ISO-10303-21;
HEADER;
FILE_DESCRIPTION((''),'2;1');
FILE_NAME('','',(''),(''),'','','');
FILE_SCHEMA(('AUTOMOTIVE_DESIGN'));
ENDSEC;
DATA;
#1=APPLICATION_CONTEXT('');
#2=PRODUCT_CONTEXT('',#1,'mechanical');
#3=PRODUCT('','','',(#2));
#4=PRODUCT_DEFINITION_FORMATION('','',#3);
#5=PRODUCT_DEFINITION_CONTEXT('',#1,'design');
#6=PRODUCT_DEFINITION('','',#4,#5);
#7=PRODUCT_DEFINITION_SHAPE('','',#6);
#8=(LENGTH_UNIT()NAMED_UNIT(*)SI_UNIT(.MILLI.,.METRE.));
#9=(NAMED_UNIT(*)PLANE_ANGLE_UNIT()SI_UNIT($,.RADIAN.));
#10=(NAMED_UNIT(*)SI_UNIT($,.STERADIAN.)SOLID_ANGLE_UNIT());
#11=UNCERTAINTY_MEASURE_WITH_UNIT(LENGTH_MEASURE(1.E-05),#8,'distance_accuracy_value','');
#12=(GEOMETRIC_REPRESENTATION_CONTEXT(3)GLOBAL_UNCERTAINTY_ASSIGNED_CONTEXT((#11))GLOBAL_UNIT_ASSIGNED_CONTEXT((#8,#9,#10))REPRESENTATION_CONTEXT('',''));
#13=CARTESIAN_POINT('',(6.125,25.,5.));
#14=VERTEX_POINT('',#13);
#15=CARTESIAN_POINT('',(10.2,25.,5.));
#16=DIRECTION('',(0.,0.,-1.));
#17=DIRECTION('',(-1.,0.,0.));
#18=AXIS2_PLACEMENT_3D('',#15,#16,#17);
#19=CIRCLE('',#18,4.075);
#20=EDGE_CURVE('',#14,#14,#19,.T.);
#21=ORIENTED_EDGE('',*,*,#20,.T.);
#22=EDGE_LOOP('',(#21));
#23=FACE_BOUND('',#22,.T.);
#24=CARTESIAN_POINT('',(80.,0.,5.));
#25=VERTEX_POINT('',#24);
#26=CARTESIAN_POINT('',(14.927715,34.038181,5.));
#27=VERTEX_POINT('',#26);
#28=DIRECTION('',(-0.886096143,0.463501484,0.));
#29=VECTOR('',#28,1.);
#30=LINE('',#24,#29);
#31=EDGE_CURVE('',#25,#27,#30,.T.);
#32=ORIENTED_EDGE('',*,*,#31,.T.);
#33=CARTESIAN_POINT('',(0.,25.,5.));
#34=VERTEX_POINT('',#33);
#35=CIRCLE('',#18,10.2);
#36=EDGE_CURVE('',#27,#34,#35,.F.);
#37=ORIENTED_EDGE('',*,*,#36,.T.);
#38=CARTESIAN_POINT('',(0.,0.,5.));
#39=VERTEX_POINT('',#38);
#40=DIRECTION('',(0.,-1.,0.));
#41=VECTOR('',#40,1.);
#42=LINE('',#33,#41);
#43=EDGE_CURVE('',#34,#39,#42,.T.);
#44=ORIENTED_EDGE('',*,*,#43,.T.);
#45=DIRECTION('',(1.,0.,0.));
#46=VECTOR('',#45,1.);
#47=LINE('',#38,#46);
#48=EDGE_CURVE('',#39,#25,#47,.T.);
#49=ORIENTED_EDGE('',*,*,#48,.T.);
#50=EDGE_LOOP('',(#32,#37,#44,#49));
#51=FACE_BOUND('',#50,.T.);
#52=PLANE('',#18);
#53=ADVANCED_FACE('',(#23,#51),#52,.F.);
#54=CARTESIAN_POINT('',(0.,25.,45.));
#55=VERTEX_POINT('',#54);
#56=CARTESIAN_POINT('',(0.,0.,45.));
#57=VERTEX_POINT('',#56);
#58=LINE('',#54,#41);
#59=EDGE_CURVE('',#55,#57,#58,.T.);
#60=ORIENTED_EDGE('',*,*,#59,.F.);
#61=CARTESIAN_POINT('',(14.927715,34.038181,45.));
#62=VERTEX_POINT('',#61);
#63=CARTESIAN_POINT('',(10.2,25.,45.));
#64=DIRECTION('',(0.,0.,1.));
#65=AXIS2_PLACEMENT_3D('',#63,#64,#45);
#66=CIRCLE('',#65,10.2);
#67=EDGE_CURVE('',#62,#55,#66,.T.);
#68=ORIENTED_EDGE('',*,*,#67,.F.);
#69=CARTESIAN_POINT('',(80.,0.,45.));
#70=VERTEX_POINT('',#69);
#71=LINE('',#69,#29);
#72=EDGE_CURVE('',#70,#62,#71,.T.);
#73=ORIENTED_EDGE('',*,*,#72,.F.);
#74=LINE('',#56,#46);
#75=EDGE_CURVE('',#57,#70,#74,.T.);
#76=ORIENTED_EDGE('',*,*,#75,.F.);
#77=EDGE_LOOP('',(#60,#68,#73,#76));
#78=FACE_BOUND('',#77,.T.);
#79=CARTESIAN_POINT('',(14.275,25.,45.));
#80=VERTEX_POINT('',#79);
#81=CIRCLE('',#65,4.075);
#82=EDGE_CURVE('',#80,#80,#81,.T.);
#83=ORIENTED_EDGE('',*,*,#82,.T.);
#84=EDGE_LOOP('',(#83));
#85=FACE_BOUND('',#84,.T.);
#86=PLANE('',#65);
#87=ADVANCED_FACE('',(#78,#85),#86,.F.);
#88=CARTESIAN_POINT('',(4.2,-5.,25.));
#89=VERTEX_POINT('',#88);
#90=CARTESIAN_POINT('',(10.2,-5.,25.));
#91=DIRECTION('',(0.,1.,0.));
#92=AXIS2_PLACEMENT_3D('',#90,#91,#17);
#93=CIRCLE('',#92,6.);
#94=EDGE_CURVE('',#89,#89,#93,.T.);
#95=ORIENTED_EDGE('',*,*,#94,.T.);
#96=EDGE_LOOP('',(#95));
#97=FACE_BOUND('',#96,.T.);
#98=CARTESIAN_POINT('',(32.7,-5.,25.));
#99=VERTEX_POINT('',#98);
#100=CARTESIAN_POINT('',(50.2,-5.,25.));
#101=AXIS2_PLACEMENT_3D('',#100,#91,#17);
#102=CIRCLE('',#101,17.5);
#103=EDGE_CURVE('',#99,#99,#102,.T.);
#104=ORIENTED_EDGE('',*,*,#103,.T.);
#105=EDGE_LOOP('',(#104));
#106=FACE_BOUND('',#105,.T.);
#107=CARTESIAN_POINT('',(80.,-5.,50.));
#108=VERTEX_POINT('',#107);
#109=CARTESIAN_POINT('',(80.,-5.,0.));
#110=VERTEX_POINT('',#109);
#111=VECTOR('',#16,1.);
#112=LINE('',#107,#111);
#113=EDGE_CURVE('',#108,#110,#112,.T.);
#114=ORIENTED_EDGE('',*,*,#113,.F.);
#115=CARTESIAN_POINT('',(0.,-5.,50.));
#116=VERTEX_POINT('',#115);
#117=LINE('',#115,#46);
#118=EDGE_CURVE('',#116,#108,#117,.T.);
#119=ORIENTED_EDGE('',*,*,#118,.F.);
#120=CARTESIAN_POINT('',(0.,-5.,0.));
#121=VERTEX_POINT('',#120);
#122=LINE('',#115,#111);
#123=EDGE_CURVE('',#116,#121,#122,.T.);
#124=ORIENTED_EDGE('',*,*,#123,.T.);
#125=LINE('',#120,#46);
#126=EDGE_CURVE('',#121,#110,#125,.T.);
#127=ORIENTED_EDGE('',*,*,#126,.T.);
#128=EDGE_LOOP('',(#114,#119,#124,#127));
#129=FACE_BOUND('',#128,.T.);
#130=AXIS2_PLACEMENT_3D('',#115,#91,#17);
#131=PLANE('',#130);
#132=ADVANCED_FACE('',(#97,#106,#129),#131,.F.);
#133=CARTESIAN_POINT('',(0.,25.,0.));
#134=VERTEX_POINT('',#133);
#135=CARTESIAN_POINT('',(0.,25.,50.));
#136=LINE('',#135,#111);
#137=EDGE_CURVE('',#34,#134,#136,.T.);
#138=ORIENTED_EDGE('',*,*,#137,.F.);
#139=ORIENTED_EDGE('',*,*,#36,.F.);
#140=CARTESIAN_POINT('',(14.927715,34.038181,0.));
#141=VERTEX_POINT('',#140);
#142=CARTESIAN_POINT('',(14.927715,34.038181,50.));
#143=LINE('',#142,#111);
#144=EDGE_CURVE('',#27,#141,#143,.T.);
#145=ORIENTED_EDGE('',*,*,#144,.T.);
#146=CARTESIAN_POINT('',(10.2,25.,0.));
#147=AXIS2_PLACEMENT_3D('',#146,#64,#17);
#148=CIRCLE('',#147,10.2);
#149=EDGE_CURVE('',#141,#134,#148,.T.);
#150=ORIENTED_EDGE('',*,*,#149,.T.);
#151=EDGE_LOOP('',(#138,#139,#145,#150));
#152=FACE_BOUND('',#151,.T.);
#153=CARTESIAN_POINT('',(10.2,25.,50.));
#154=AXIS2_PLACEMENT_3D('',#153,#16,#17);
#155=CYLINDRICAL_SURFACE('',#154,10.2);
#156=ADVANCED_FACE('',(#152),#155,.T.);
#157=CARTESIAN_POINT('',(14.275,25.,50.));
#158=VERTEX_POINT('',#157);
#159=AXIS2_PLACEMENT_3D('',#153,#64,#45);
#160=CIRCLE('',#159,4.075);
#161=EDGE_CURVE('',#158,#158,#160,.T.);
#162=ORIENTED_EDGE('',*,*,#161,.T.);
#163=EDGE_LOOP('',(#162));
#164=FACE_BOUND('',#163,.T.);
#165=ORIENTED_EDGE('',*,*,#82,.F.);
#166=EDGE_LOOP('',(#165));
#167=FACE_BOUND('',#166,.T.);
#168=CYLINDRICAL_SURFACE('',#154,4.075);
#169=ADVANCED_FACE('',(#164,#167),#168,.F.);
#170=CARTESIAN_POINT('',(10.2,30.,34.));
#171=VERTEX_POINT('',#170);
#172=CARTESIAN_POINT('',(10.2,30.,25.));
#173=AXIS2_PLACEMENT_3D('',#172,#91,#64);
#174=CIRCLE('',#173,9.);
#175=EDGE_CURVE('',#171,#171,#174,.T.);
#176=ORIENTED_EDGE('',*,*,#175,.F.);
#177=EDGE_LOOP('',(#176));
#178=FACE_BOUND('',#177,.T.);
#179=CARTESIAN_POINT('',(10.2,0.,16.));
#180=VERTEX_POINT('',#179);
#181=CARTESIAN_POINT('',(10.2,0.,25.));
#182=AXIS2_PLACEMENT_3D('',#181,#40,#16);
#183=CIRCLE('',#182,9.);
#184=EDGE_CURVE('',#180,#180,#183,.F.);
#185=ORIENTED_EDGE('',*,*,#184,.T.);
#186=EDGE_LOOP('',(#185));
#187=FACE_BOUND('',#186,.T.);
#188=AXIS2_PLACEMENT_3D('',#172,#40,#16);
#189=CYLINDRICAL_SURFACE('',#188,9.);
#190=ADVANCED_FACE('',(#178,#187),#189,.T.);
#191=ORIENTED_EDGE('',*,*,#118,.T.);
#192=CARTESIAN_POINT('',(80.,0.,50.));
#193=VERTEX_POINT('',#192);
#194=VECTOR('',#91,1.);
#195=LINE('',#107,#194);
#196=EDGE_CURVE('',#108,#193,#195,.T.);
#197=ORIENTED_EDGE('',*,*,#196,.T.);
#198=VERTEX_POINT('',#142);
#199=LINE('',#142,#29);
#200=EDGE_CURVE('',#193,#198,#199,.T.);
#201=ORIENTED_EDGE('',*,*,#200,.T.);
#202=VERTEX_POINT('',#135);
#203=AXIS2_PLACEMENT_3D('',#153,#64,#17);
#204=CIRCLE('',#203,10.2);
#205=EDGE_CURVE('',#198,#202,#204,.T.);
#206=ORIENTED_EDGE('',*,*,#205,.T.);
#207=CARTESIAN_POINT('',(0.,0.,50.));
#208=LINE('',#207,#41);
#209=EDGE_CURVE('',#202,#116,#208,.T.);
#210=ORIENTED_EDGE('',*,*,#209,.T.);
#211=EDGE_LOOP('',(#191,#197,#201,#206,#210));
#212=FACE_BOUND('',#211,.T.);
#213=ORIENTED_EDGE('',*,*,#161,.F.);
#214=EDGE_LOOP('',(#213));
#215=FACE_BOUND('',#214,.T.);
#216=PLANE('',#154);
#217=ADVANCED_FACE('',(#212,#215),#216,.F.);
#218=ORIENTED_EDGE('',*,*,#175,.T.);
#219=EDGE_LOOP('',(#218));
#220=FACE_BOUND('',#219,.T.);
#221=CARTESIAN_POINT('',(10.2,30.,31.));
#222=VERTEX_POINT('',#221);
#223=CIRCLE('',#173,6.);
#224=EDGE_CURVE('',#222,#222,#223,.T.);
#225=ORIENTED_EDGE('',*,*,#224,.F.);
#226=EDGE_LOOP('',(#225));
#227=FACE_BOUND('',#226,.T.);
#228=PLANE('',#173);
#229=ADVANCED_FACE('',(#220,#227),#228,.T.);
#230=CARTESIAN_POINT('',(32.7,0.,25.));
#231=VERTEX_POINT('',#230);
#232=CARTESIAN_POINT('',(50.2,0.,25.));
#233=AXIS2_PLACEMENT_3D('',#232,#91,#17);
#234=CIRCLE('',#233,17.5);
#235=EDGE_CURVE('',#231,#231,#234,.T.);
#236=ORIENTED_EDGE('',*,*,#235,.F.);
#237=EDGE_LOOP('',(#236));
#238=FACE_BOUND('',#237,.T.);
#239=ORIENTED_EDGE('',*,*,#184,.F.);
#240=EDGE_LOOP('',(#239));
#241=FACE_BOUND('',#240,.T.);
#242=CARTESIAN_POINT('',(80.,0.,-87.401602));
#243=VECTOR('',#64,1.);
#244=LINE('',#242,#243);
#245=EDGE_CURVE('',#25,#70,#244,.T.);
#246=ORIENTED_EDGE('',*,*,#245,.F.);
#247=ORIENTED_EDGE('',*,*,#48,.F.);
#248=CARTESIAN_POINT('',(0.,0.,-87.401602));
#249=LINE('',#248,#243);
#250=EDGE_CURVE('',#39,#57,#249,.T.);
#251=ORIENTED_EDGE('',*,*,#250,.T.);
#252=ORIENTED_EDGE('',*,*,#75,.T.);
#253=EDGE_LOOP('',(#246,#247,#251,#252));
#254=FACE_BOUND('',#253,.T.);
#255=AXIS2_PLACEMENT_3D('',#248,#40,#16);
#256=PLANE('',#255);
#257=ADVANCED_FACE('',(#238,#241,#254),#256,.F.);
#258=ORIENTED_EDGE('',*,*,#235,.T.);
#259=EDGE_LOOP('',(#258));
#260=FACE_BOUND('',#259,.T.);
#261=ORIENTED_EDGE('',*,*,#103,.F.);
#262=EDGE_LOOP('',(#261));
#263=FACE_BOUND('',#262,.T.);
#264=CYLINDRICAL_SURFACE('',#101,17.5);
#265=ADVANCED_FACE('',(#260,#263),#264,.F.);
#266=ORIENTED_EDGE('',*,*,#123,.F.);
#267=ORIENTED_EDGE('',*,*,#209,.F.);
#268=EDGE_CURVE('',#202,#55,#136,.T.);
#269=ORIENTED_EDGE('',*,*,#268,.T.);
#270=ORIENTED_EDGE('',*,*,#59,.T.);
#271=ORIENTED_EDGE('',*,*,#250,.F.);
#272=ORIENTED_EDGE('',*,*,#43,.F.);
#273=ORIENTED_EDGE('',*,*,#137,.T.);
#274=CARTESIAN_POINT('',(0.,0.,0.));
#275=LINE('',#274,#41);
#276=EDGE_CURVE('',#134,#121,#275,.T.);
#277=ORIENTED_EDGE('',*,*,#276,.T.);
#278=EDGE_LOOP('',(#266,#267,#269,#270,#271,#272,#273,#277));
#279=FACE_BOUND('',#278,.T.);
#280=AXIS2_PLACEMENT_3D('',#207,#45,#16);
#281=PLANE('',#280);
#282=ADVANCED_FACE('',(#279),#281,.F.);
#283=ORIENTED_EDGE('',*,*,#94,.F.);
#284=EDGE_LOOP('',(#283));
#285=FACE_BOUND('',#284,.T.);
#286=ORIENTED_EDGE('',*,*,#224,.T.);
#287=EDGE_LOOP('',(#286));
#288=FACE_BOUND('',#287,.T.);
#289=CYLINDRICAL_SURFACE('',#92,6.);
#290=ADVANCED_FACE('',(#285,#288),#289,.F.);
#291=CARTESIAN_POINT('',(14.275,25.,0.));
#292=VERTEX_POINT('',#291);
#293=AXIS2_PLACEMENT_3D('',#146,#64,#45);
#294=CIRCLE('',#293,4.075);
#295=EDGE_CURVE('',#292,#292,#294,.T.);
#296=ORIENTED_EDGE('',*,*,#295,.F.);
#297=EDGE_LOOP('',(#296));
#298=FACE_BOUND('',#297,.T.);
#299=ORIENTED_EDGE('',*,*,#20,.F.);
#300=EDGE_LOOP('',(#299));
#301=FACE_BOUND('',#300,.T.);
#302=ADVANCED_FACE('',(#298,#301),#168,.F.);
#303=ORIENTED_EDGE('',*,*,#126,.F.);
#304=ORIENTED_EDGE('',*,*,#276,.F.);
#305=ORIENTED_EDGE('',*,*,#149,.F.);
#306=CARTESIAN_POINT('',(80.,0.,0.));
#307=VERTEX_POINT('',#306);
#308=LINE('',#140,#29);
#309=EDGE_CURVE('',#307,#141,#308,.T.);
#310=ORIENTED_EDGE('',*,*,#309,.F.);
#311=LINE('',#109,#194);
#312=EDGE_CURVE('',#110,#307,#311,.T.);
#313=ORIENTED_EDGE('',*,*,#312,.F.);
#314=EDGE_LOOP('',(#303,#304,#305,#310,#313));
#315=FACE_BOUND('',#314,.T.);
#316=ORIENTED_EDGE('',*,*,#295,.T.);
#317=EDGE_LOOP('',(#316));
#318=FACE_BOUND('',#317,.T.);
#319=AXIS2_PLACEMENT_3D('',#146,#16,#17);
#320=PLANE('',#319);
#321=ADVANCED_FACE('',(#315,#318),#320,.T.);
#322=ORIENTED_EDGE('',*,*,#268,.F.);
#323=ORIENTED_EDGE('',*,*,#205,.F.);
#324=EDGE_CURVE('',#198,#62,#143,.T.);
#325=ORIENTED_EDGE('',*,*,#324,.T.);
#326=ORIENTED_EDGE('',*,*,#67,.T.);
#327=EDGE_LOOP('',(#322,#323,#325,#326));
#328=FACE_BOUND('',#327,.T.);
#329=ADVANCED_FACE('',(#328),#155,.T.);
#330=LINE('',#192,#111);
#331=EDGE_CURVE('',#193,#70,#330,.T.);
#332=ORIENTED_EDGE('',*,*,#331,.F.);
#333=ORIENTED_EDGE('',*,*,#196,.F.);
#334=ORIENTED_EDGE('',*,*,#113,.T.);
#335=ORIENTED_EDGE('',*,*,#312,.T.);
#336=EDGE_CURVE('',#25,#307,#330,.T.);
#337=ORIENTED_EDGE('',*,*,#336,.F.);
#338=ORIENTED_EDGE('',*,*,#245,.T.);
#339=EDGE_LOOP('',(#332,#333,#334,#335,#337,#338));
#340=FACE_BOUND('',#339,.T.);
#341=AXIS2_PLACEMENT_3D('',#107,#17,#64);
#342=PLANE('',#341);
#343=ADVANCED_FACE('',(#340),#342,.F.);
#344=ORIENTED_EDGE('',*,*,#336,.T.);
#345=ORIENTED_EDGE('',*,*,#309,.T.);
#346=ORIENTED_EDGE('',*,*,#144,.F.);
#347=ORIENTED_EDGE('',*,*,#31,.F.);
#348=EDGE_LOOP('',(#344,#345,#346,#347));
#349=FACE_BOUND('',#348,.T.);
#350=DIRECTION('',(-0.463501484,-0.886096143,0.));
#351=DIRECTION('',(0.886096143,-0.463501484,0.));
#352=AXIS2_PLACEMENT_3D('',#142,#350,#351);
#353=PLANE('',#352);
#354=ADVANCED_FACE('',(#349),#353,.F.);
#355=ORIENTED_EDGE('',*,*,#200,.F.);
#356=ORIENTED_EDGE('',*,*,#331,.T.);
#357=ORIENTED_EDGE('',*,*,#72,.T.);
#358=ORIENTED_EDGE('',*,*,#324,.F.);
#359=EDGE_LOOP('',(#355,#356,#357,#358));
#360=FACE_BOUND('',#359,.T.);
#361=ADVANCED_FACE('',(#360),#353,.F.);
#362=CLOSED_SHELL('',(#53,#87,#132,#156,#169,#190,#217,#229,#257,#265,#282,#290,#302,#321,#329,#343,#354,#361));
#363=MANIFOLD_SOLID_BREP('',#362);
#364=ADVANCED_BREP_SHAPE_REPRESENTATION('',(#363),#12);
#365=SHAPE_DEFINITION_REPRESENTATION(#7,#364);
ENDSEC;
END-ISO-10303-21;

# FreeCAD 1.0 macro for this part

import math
import FreeCAD as App
import Part
import Sketcher
Q = App.Units.Quantity

doc = App.newDocument("Part")
body = doc.addObject("PartDesign::Body", "Body")

# Sketch on XY plane
sketch1 = body.newObject("Sketcher::SketchObject", "Sketch")
sketch1.AttachmentSupport = (doc.getObject("XY_Plane"), [""])
sketch1.MapMode = "FlatFace"
sketch1.addGeometry([
    Part.ArcOfCircle(Part.Circle(App.Vector(10.2, 25, 0), App.Vector(0, 0, 1), 10.2), math.radians(62.386716), math.radians(180)),  # 0
    Part.LineSegment(App.Vector(0, 25, 0), App.Vector(0, -5, 0)),  # 1
    Part.LineSegment(App.Vector(0, -5, 0), App.Vector(80, -5, 0)),  # 2
    Part.LineSegment(App.Vector(80, -5, 0), App.Vector(80, 0, 0)),  # 3
    Part.LineSegment(App.Vector(80, 0, 0), App.Vector(14.927715, 34.038181, 0)),  # 4
    Part.Circle(App.Vector(10.2, 25, 0), App.Vector(0, 0, 1), 4.075),  # 5
], False)
sketch1.addConstraint([
    Sketcher.Constraint("Tangent", 0, 2, 1, 1),
    Sketcher.Constraint("Coincident", 1, 2, 2, 1),
    Sketcher.Constraint("Coincident", 2, 2, 3, 1),
    Sketcher.Constraint("Coincident", 3, 2, 4, 1),
    Sketcher.Constraint("Tangent", 4, 2, 0, 1),
    Sketcher.Constraint("Vertical", 1),
    Sketcher.Constraint("Horizontal", 2),
    Sketcher.Constraint("Vertical", 3),
    Sketcher.Constraint("Coincident", 5, 3, 0, 3),
    Sketcher.Constraint("PointOnObject", 0, 2, -2),
    Sketcher.Constraint("PointOnObject", 3, 2, -1),
    Sketcher.Constraint("Radius", 0, Q("10.2 mm")),
    Sketcher.Constraint("Diameter", 5, Q("8.15 mm")),
    Sketcher.Constraint("DistanceX", 2, 1, 2, 2, Q("80 mm")),
    Sketcher.Constraint("DistanceY", 1, 2, 1, 1, Q("30 mm")),
    Sketcher.Constraint("DistanceY", 3, 1, 3, 2, Q("5 mm")),
])
pad1 = body.newObject("PartDesign::Pad", "Pad")
pad1.Profile = sketch1
pad1.Length = 50

# Sketch on XY plane
sketch2 = body.newObject("Sketcher::SketchObject", "Sketch001")
sketch2.AttachmentSupport = (doc.getObject("XY_Plane"), [""])
sketch2.MapMode = "FlatFace"
sketch2.AttachmentOffset = App.Placement(App.Vector(0, 0, 45), App.Rotation())
sketch2.addGeometry([
    Part.LineSegment(App.Vector(0, 25, 0), App.Vector(0, 0, 0)),
    Part.LineSegment(App.Vector(0, 0, 0), App.Vector(80, 0, 0)),
    Part.LineSegment(App.Vector(80, 0, 0), App.Vector(14.927715, 34.038181, 0)),
    Part.ArcOfCircle(Part.Circle(App.Vector(10.2, 25, 0), App.Vector(0, 0, 1), 10.2), math.radians(62.386716), math.radians(180)),
], False)
sketch2.addConstraint([
    Sketcher.Constraint("Coincident", 0, 2, 1, 1),
    Sketcher.Constraint("Coincident", 1, 2, 2, 1),
    Sketcher.Constraint("Tangent", 2, 2, 3, 1),
    Sketcher.Constraint("Tangent", 3, 2, 0, 1),
    Sketcher.Constraint("Vertical", 0),
    Sketcher.Constraint("Horizontal", 1),
    Sketcher.Constraint("Coincident", 0, 2, -1, 1),
    Sketcher.Constraint("Radius", 3, Q("10.2 mm")),
    Sketcher.Constraint("DistanceX", 1, 1, 1, 2, Q("80 mm")),
    Sketcher.Constraint("DistanceY", 0, 2, 0, 1, Q("25 mm")),
])
pocket1 = body.newObject("PartDesign::Pocket", "Pocket")
pocket1.Profile = sketch2
pocket1.Length = 40

# Sketch on XZ plane
sketch3 = body.newObject("Sketcher::SketchObject", "Sketch002")
sketch3.AttachmentSupport = (doc.getObject("XZ_Plane"), [""])
sketch3.MapMode = "FlatFace"
sketch3.addGeometry([
    Part.Circle(App.Vector(10.2, 25, 0), App.Vector(0, 0, 1), 6),
    Part.Circle(App.Vector(50.2, 25, 0), App.Vector(0, 0, 1), 17.5),
], False)
sketch3.addConstraint([
    Sketcher.Constraint("Horizontal", 0, 3, 1, 3),
    Sketcher.Constraint("Diameter", 0, Q("12 mm")),
    Sketcher.Constraint("Diameter", 1, Q("35 mm")),
    Sketcher.Constraint("DistanceY", -1, 1, 0, 3, Q("25 mm")),
    Sketcher.Constraint("DistanceX", 0, 3, 1, 3, Q("40 mm")),
    Sketcher.Constraint("DistanceX", -1, 1, 0, 3, Q("10.2 mm")),
])
pocket2 = body.newObject("PartDesign::Pocket", "Pocket001")
pocket2.Profile = sketch3
pocket2.Type = "ThroughAll"
pocket2.Reversed = True

# Sketch on XZ plane
sketch4 = body.newObject("Sketcher::SketchObject", "Sketch003")
sketch4.AttachmentSupport = (doc.getObject("XZ_Plane"), [""])
sketch4.MapMode = "FlatFace"
sketch4.addGeometry([
    Part.Circle(App.Vector(10.2, 25, 0), App.Vector(0, 0, 1), 9),
    Part.Circle(App.Vector(10.2, 25, 0), App.Vector(0, 0, 1), 6),
], False)
sketch4.addConstraint([
    Sketcher.Constraint("Coincident", 1, 3, 0, 3),
    Sketcher.Constraint("Diameter", 0, Q("18 mm")),
    Sketcher.Constraint("Diameter", 1, Q("12 mm")),
    Sketcher.Constraint("DistanceY", -1, 1, 0, 3, Q("25 mm")),
    Sketcher.Constraint("DistanceX", -1, 1, 0, 3, Q("10.2 mm")),
])
pad2 = body.newObject("PartDesign::Pad", "Pad001")
pad2.Profile = sketch4
pad2.Length = 30
pad2.Reversed = True

doc.recompute()
